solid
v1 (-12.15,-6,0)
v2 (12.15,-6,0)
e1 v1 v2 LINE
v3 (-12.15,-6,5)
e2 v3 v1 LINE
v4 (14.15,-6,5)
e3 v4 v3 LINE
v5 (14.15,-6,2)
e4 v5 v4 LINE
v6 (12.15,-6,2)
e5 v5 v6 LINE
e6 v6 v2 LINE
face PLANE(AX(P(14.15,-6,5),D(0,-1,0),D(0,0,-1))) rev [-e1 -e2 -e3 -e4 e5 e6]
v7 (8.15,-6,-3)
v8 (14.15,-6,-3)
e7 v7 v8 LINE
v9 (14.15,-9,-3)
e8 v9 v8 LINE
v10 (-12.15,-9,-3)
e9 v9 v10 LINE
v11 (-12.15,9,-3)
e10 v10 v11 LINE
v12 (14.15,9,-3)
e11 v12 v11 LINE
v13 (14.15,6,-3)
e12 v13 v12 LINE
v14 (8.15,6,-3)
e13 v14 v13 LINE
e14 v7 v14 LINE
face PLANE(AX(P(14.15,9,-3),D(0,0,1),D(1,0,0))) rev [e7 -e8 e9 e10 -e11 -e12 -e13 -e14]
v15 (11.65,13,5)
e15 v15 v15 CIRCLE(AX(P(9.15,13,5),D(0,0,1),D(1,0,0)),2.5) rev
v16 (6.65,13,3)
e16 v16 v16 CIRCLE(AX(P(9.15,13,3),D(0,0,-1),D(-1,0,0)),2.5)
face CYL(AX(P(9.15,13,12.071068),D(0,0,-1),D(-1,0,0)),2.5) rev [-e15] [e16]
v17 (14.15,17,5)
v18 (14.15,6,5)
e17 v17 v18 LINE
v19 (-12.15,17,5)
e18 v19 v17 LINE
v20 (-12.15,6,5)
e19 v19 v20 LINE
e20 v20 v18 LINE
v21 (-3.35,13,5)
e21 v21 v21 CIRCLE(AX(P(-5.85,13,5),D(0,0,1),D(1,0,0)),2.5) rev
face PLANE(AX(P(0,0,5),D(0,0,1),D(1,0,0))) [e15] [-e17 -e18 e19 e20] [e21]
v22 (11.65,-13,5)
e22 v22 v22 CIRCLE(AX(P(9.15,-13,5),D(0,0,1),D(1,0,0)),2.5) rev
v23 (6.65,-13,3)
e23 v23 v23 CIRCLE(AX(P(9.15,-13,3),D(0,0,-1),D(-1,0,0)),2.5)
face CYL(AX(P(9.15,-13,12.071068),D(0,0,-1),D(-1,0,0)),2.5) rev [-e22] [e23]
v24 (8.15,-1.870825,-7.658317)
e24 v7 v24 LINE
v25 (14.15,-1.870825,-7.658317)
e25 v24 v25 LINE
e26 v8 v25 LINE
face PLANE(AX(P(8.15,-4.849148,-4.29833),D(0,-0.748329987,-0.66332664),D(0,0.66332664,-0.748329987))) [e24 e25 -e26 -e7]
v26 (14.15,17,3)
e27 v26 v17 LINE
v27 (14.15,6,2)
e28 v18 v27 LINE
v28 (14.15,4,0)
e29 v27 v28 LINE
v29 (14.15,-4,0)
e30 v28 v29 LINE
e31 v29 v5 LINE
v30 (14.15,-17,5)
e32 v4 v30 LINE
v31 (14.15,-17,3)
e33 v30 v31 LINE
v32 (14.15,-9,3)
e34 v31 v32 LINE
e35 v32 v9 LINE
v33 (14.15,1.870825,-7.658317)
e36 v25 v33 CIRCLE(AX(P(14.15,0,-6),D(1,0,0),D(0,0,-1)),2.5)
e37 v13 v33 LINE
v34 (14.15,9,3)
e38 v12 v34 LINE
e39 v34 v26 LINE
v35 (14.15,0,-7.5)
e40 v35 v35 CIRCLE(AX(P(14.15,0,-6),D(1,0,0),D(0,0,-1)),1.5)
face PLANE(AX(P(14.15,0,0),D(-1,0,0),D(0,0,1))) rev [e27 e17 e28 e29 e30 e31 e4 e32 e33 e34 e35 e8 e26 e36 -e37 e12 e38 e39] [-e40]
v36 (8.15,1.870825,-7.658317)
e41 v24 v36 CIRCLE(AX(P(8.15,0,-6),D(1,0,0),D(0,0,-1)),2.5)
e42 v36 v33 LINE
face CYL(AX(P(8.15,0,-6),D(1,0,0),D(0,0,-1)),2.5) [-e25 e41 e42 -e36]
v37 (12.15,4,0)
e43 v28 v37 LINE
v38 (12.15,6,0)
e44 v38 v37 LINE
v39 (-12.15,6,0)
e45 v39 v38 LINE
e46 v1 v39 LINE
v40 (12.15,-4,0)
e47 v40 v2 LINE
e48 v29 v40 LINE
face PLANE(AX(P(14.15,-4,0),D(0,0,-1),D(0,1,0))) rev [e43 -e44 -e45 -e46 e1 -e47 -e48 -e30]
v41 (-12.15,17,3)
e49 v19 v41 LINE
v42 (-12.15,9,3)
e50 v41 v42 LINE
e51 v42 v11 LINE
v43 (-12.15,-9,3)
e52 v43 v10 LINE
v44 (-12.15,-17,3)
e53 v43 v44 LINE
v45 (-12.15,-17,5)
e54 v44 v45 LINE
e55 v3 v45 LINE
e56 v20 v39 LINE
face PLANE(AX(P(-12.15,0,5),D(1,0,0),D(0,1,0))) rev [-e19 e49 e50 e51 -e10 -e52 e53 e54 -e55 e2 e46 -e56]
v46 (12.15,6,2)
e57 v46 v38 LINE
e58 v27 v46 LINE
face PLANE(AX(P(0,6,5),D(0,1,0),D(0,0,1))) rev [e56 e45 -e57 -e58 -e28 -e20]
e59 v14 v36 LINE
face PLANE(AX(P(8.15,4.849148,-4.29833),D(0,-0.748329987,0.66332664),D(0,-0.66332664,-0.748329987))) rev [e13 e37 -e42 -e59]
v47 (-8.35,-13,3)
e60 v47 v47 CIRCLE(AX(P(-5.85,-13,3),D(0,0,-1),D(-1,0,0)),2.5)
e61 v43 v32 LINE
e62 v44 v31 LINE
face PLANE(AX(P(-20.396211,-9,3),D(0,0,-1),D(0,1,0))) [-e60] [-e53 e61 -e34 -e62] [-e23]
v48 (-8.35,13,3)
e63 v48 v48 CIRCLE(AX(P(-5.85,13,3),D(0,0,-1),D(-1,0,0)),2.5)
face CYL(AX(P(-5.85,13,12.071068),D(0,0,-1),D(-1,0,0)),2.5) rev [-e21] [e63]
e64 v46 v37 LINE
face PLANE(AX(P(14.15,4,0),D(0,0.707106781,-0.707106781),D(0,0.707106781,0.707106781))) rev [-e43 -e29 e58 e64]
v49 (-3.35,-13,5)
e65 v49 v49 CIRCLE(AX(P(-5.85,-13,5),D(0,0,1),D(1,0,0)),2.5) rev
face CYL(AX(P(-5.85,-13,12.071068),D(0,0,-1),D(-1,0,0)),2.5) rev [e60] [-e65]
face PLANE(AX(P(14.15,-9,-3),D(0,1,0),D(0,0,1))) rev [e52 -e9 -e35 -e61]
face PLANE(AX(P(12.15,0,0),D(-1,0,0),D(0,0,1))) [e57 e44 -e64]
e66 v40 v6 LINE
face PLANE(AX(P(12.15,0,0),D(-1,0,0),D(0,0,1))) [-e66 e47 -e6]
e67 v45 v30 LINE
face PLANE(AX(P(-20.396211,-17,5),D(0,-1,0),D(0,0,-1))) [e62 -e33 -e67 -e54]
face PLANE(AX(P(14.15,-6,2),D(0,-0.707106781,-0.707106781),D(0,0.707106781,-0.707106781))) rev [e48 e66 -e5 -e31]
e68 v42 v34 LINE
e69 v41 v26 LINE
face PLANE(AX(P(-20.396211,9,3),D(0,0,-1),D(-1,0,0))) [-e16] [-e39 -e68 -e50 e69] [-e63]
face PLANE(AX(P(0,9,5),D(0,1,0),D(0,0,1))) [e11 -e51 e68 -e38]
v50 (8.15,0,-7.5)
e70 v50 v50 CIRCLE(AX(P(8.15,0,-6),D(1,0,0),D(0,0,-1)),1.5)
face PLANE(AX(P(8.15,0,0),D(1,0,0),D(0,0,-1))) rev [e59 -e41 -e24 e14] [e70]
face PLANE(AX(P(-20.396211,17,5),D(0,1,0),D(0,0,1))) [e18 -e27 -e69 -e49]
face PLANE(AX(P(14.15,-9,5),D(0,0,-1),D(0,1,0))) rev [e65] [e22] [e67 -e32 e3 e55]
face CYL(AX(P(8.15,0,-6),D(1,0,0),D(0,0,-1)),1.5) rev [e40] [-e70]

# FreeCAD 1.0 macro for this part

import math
import FreeCAD as App
import Part
import Sketcher
Q = App.Units.Quantity

doc = App.newDocument("Part")
body = doc.addObject("PartDesign::Body", "Body")

# Sketch on XY plane
sketch1 = body.newObject("Sketcher::SketchObject", "Sketch")
sketch1.AttachmentSupport = (doc.getObject("XY_Plane"), [""])
sketch1.MapMode = "FlatFace"
sketch1.addGeometry([
    Part.LineSegment(App.Vector(-12.2, 9, 0), App.Vector(-12.2, 6, 0)),
    Part.LineSegment(App.Vector(-12.2, 6, 0), App.Vector(12.2, 6, 0)),
    Part.LineSegment(App.Vector(12.2, 6, 0), App.Vector(12.2, 9, 0)),
    Part.LineSegment(App.Vector(12.2, 9, 0), App.Vector(-12.2, 9, 0)),
], False)
sketch1.addConstraint([
    Sketcher.Constraint("Coincident", 0, 2, 1, 1),
    Sketcher.Constraint("Coincident", 1, 2, 2, 1),
    Sketcher.Constraint("Coincident", 2, 2, 3, 1),
    Sketcher.Constraint("Coincident", 3, 2, 0, 1),
    Sketcher.Constraint("Vertical", 0),
    Sketcher.Constraint("Horizontal", 1),
    Sketcher.Constraint("Vertical", 2),
    Sketcher.Constraint("Horizontal", 3),
    Sketcher.Constraint("DistanceY", 0, 2, 0, 1, Q("3 mm")),
    Sketcher.Constraint("DistanceX", 1, 1, 1, 2, Q("24.3 mm")),
    Sketcher.Constraint("DistanceY", -1, 1, 0, 2, Q("6 mm")),
    Sketcher.Constraint("DistanceX", 0, 2, -1, 1, Q("12.15 mm")),
])
pad1 = body.newObject("PartDesign::Pad", "Pad")
pad1.Profile = sketch1
pad1.Length = 5
body2 = doc.addObject("PartDesign::Body", "Body001")

# Sketch on XY plane
sketch2 = body2.newObject("Sketcher::SketchObject", "Sketch001")
sketch2.AttachmentSupport = (doc.getObject("XY_Plane001"), [""])
sketch2.MapMode = "FlatFace"
sketch2.addGeometry([
    Part.LineSegment(App.Vector(-12.2, -6, 0), App.Vector(-12.2, -9, 0)),
    Part.LineSegment(App.Vector(-12.2, -9, 0), App.Vector(12.2, -9, 0)),
    Part.LineSegment(App.Vector(12.2, -9, 0), App.Vector(12.2, -6, 0)),
    Part.LineSegment(App.Vector(12.2, -6, 0), App.Vector(-12.2, -6, 0)),
], False)
sketch2.addConstraint([
    Sketcher.Constraint("Coincident", 0, 2, 1, 1),
    Sketcher.Constraint("Coincident", 1, 2, 2, 1),
    Sketcher.Constraint("Coincident", 2, 2, 3, 1),
    Sketcher.Constraint("Coincident", 3, 2, 0, 1),
    Sketcher.Constraint("Vertical", 0),
    Sketcher.Constraint("Horizontal", 1),
    Sketcher.Constraint("Vertical", 2),
    Sketcher.Constraint("Horizontal", 3),
    Sketcher.Constraint("DistanceY", 0, 2, 0, 1, Q("3 mm")),
    Sketcher.Constraint("DistanceX", 1, 1, 1, 2, Q("24.3 mm")),
    Sketcher.Constraint("DistanceY", 0, 2, -1, 1, Q("9 mm")),
    Sketcher.Constraint("DistanceX", 0, 2, -1, 1, Q("12.15 mm")),
])
pad2 = body2.newObject("PartDesign::Pad", "Pad001")
pad2.Profile = sketch2
pad2.Length = 5
body3 = doc.addObject("PartDesign::Body", "Body002")

# Sketch on XY plane
sketch3 = body3.newObject("Sketcher::SketchObject", "Sketch002")
sketch3.AttachmentSupport = (doc.getObject("XY_Plane002"), [""])
sketch3.MapMode = "FlatFace"
sketch3.addGeometry([
    Part.LineSegment(App.Vector(12, 9, 0), App.Vector(12, -9, 0)),
    Part.LineSegment(App.Vector(12, -9, 0), App.Vector(-12, -9, 0)),
    Part.LineSegment(App.Vector(-12, -9, 0), App.Vector(-12, 9, 0)),
    Part.LineSegment(App.Vector(-12, 9, 0), App.Vector(12, 9, 0)),
], False)
sketch3.addConstraint([
    Sketcher.Constraint("Coincident", 0, 2, 1, 1),
    Sketcher.Constraint("Coincident", 1, 2, 2, 1),
    Sketcher.Constraint("Coincident", 2, 2, 3, 1),
    Sketcher.Constraint("Coincident", 3, 2, 0, 1),
    Sketcher.Constraint("Vertical", 0),
    Sketcher.Constraint("Horizontal", 1),
    Sketcher.Constraint("Vertical", 2),
    Sketcher.Constraint("Horizontal", 3),
    Sketcher.Constraint("Symmetric", 0, 2, 2, 2, -1, 1),
    Sketcher.Constraint("DistanceY", 0, 2, 0, 1, Q("18 mm")),
    Sketcher.Constraint("DistanceX", 1, 2, 1, 1, Q("24.3 mm")),
])
pad3 = body3.newObject("PartDesign::Pad", "Pad002")
pad3.Profile = sketch3
pad3.Length = 3
pad3.Reversed = True
body.AllowCompound = True
doc.recompute()

boolean = body.newObject("PartDesign::Boolean", "Boolean")
boolean.Type = "Fuse"
boolean.addObjects([body2])
doc.recompute()

boolean2 = body.newObject("PartDesign::Boolean", "Boolean001")
boolean2.Type = "Fuse"
boolean2.addObjects([body3])

# Sketch on YZ plane
sketch4 = body.newObject("Sketcher::SketchObject", "Sketch003")
sketch4.AttachmentSupport = (doc.getObject("YZ_Plane"), [""])
sketch4.MapMode = "FlatFace"
sketch4.AttachmentOffset = App.Placement(App.Vector(0, 0, 12.15), App.Rotation())
sketch4.addGeometry([
    Part.LineSegment(App.Vector(9, 5, 0), App.Vector(6, 5, 0)),  # 0
    Part.LineSegment(App.Vector(6, 5, 0), App.Vector(6, 2, 0)),  # 1
    Part.LineSegment(App.Vector(6, 2, 0), App.Vector(4, 0, 0)),  # 2
    Part.LineSegment(App.Vector(4, 0, 0), App.Vector(-4, 0, 0)),  # 3
    Part.LineSegment(App.Vector(-4, 0, 0), App.Vector(-6, 2, 0)),  # 4
    Part.LineSegment(App.Vector(-6, 2, 0), App.Vector(-6, 5, 0)),  # 5
    Part.LineSegment(App.Vector(-6, 5, 0), App.Vector(-9, 5, 0)),  # 6
    Part.LineSegment(App.Vector(-9, 5, 0), App.Vector(-9, -3, 0)),  # 7
    Part.LineSegment(App.Vector(-9, -3, 0), App.Vector(9, -3, 0)),  # 8
    Part.LineSegment(App.Vector(9, -3, 0), App.Vector(9, 5, 0)),  # 9
], False)
sketch4.addConstraint([
    Sketcher.Constraint("Coincident", 0, 2, 1, 1),
    Sketcher.Constraint("Coincident", 1, 2, 2, 1),
    Sketcher.Constraint("Coincident", 2, 2, 3, 1),
    Sketcher.Constraint("Coincident", 3, 2, 4, 1),
    Sketcher.Constraint("Coincident", 4, 2, 5, 1),
    Sketcher.Constraint("Coincident", 5, 2, 6, 1),
    Sketcher.Constraint("Coincident", 6, 2, 7, 1),
    Sketcher.Constraint("Coincident", 7, 2, 8, 1),
    Sketcher.Constraint("Coincident", 8, 2, 9, 1),
    Sketcher.Constraint("Coincident", 9, 2, 0, 1),
    Sketcher.Constraint("Horizontal", 0),
    Sketcher.Constraint("Vertical", 1),
    Sketcher.Constraint("Horizontal", 3),
    Sketcher.Constraint("Vertical", 5),
    Sketcher.Constraint("Horizontal", 6),
    Sketcher.Constraint("Vertical", 7),
    Sketcher.Constraint("Horizontal", 8),
    Sketcher.Constraint("Vertical", 9),
    Sketcher.Constraint("Symmetric", 2, 2, 3, 2, -1, 1),
    Sketcher.Constraint("Symmetric", 1, 2, 4, 2, -2),
    Sketcher.Constraint("Symmetric", 6, 2, 9, 2, -2),
    Sketcher.Constraint("Perpendicular", 2, 4),
    Sketcher.Constraint("Equal", 6, 1),
    Sketcher.Constraint("Equal", 3, 7),
    Sketcher.Constraint("DistanceX", 0, 2, 0, 1, Q("3 mm")),
    Sketcher.Constraint("DistanceX", 3, 2, 3, 1, Q("8 mm")),
    Sketcher.Constraint("DistanceX", 8, 1, 8, 2, Q("18 mm")),
])
pad4 = body.newObject("PartDesign::Pad", "Pad003")
pad4.Profile = sketch4
pad4.Length = 2

# Sketch on YZ plane
sketch5 = body.newObject("Sketcher::SketchObject", "Sketch004")
sketch5.AttachmentSupport = (doc.getObject("YZ_Plane"), [""])
sketch5.MapMode = "FlatFace"
sketch5.AttachmentOffset = App.Placement(App.Vector(0, 0, 14.15), App.Rotation())
sketch5.addGeometry([
    Part.LineSegment(App.Vector(6, -3, 0), App.Vector(-6, -3, 0)),  # 0
    Part.LineSegment(App.Vector(-6, -3, 0), App.Vector(-1.9, -7.7, 0)),  # 1
    Part.ArcOfCircle(Part.Circle(App.Vector(0, -6, 0), App.Vector(0, 0, 1), 2.5), math.radians(-138), math.radians(-90)),  # 2
    Part.ArcOfCircle(Part.Circle(App.Vector(0, -6, 0), App.Vector(0, 0, 1), 2.5), math.radians(-90), math.radians(-42)),  # 3
    Part.LineSegment(App.Vector(1.9, -7.7, 0), App.Vector(6, -3, 0)),  # 4
    Part.Circle(App.Vector(0, -6, 0), App.Vector(0, 0, 1), 1.5),  # 5
], False)
sketch5.addConstraint([
    Sketcher.Constraint("Coincident", 0, 2, 1, 1),
    Sketcher.Constraint("Tangent", 1, 2, 2, 1),
    Sketcher.Constraint("Tangent", 2, 2, 3, 1),
    Sketcher.Constraint("Tangent", 3, 2, 4, 1),
    Sketcher.Constraint("Coincident", 4, 2, 0, 1),
    Sketcher.Constraint("Horizontal", 0),
    Sketcher.Constraint("Coincident", 5, 3, 2, 3),
    Sketcher.Constraint("Equal", 2, 3),
    Sketcher.Constraint("Symmetric", 1, 2, 3, 2, -2),
    Sketcher.Constraint("PointOnObject", 2, 2, -2),
    Sketcher.Constraint("Diameter", 5, Q("3 mm")),
    Sketcher.Constraint("Radius", 2, Q("2.5 mm")),
    Sketcher.Constraint("DistanceX", 0, 2, 0, 1, Q("12 mm")),
    Sketcher.Constraint("DistanceY", 2, 3, -1, 1, Q("6 mm")),
    Sketcher.Constraint("DistanceY", 0, 2, -1, 1, Q("3 mm")),
])
pad5 = body.newObject("PartDesign::Pad", "Pad004")
pad5.Profile = sketch5
pad5.Length = 6
pad5.Reversed = True

# Sketch on YZ plane
sketch6 = body.newObject("Sketcher::SketchObject", "Sketch005")
sketch6.AttachmentSupport = (doc.getObject("YZ_Plane"), [""])
sketch6.MapMode = "FlatFace"
sketch6.AttachmentOffset = App.Placement(App.Vector(0, 0, 14.15), App.Rotation())
sketch6.addGeometry([
    Part.LineSegment(App.Vector(17, 5, 0), App.Vector(9, 5, 0)),  # 0
    Part.LineSegment(App.Vector(9, 5, 0), App.Vector(9, 3, 0)),  # 1
    Part.LineSegment(App.Vector(9, 3, 0), App.Vector(17, 3, 0)),  # 2
    Part.LineSegment(App.Vector(17, 3, 0), App.Vector(17, 5, 0)),  # 3
    Part.LineSegment(App.Vector(-9, 5, 0), App.Vector(-17, 5, 0)),  # 4
    Part.LineSegment(App.Vector(-17, 5, 0), App.Vector(-17, 3, 0)),  # 5
    Part.LineSegment(App.Vector(-17, 3, 0), App.Vector(-9, 3, 0)),  # 6
    Part.LineSegment(App.Vector(-9, 3, 0), App.Vector(-9, 5, 0)),  # 7
], False)
sketch6.addConstraint([
    Sketcher.Constraint("Coincident", 0, 2, 1, 1),
    Sketcher.Constraint("Coincident", 1, 2, 2, 1),
    Sketcher.Constraint("Coincident", 2, 2, 3, 1),
    Sketcher.Constraint("Coincident", 3, 2, 0, 1),
    Sketcher.Constraint("Coincident", 4, 2, 5, 1),
    Sketcher.Constraint("Coincident", 5, 2, 6, 1),
    Sketcher.Constraint("Coincident", 6, 2, 7, 1),
    Sketcher.Constraint("Coincident", 7, 2, 4, 1),
    Sketcher.Constraint("Horizontal", 0),
    Sketcher.Constraint("Vertical", 1),
    Sketcher.Constraint("Horizontal", 2),
    Sketcher.Constraint("Vertical", 3),
    Sketcher.Constraint("Horizontal", 4),
    Sketcher.Constraint("Vertical", 5),
    Sketcher.Constraint("Horizontal", 6),
    Sketcher.Constraint("Vertical", 7),
    Sketcher.Constraint("Symmetric", 3, 2, 4, 2, -2),
    Sketcher.Constraint("Symmetric", 1, 2, 6, 2, -2),
    Sketcher.Constraint("DistanceX", 0, 2, 0, 1, Q("8 mm")),
    Sketcher.Constraint("DistanceY", 1, 2, 1, 1, Q("2 mm")),
    Sketcher.Constraint("DistanceX", -1, 1, 0, 2, Q("9 mm")),
    Sketcher.Constraint("DistanceY", -1, 1, 0, 2, Q("5 mm")),
])
pad6 = body.newObject("PartDesign::Pad", "Pad005")
pad6.Profile = sketch6
pad6.Length = 26.3
pad6.Reversed = True

# Sketch on XY plane
sketch7 = body.newObject("Sketcher::SketchObject", "Sketch006")
sketch7.AttachmentSupport = (doc.getObject("XY_Plane"), [""])
sketch7.MapMode = "FlatFace"
sketch7.AttachmentOffset = App.Placement(App.Vector(0, 0, 3), App.Rotation())
sketch7.addGeometry([
    Part.Circle(App.Vector(-5.8, -13, 0), App.Vector(0, 0, 1), 2.5),
    Part.Circle(App.Vector(9.2, -13, 0), App.Vector(0, 0, 1), 2.5),
    Part.Circle(App.Vector(9.2, 13, 0), App.Vector(0, 0, 1), 2.5),
    Part.Circle(App.Vector(-5.8, 13, 0), App.Vector(0, 0, 1), 2.5),
], False)
sketch7.addConstraint([
    Sketcher.Constraint("Equal", 0, 1),
    Sketcher.Constraint("Equal", 1, 2),
    Sketcher.Constraint("Equal", 2, 3),
    Sketcher.Constraint("Symmetric", 1, 3, 2, 3, -1),
    Sketcher.Constraint("Symmetric", 0, 3, 3, 3, -1),
    Sketcher.Constraint("Horizontal", 0, 3, 1, 3),
    Sketcher.Constraint("Diameter", 0, Q("5 mm")),
    Sketcher.Constraint("DistanceY", 0, 3, -1, 1, Q("13 mm")),
    Sketcher.Constraint("DistanceX", 0, 3, 1, 3, Q("15 mm")),
    Sketcher.Constraint("DistanceX", 0, 3, -1, 1, Q("5.85 mm")),
])
pocket1 = body.newObject("PartDesign::Pocket", "Pocket")
pocket1.Profile = sketch7
pocket1.Length = 2
pocket1.Reversed = True

doc.recompute()
